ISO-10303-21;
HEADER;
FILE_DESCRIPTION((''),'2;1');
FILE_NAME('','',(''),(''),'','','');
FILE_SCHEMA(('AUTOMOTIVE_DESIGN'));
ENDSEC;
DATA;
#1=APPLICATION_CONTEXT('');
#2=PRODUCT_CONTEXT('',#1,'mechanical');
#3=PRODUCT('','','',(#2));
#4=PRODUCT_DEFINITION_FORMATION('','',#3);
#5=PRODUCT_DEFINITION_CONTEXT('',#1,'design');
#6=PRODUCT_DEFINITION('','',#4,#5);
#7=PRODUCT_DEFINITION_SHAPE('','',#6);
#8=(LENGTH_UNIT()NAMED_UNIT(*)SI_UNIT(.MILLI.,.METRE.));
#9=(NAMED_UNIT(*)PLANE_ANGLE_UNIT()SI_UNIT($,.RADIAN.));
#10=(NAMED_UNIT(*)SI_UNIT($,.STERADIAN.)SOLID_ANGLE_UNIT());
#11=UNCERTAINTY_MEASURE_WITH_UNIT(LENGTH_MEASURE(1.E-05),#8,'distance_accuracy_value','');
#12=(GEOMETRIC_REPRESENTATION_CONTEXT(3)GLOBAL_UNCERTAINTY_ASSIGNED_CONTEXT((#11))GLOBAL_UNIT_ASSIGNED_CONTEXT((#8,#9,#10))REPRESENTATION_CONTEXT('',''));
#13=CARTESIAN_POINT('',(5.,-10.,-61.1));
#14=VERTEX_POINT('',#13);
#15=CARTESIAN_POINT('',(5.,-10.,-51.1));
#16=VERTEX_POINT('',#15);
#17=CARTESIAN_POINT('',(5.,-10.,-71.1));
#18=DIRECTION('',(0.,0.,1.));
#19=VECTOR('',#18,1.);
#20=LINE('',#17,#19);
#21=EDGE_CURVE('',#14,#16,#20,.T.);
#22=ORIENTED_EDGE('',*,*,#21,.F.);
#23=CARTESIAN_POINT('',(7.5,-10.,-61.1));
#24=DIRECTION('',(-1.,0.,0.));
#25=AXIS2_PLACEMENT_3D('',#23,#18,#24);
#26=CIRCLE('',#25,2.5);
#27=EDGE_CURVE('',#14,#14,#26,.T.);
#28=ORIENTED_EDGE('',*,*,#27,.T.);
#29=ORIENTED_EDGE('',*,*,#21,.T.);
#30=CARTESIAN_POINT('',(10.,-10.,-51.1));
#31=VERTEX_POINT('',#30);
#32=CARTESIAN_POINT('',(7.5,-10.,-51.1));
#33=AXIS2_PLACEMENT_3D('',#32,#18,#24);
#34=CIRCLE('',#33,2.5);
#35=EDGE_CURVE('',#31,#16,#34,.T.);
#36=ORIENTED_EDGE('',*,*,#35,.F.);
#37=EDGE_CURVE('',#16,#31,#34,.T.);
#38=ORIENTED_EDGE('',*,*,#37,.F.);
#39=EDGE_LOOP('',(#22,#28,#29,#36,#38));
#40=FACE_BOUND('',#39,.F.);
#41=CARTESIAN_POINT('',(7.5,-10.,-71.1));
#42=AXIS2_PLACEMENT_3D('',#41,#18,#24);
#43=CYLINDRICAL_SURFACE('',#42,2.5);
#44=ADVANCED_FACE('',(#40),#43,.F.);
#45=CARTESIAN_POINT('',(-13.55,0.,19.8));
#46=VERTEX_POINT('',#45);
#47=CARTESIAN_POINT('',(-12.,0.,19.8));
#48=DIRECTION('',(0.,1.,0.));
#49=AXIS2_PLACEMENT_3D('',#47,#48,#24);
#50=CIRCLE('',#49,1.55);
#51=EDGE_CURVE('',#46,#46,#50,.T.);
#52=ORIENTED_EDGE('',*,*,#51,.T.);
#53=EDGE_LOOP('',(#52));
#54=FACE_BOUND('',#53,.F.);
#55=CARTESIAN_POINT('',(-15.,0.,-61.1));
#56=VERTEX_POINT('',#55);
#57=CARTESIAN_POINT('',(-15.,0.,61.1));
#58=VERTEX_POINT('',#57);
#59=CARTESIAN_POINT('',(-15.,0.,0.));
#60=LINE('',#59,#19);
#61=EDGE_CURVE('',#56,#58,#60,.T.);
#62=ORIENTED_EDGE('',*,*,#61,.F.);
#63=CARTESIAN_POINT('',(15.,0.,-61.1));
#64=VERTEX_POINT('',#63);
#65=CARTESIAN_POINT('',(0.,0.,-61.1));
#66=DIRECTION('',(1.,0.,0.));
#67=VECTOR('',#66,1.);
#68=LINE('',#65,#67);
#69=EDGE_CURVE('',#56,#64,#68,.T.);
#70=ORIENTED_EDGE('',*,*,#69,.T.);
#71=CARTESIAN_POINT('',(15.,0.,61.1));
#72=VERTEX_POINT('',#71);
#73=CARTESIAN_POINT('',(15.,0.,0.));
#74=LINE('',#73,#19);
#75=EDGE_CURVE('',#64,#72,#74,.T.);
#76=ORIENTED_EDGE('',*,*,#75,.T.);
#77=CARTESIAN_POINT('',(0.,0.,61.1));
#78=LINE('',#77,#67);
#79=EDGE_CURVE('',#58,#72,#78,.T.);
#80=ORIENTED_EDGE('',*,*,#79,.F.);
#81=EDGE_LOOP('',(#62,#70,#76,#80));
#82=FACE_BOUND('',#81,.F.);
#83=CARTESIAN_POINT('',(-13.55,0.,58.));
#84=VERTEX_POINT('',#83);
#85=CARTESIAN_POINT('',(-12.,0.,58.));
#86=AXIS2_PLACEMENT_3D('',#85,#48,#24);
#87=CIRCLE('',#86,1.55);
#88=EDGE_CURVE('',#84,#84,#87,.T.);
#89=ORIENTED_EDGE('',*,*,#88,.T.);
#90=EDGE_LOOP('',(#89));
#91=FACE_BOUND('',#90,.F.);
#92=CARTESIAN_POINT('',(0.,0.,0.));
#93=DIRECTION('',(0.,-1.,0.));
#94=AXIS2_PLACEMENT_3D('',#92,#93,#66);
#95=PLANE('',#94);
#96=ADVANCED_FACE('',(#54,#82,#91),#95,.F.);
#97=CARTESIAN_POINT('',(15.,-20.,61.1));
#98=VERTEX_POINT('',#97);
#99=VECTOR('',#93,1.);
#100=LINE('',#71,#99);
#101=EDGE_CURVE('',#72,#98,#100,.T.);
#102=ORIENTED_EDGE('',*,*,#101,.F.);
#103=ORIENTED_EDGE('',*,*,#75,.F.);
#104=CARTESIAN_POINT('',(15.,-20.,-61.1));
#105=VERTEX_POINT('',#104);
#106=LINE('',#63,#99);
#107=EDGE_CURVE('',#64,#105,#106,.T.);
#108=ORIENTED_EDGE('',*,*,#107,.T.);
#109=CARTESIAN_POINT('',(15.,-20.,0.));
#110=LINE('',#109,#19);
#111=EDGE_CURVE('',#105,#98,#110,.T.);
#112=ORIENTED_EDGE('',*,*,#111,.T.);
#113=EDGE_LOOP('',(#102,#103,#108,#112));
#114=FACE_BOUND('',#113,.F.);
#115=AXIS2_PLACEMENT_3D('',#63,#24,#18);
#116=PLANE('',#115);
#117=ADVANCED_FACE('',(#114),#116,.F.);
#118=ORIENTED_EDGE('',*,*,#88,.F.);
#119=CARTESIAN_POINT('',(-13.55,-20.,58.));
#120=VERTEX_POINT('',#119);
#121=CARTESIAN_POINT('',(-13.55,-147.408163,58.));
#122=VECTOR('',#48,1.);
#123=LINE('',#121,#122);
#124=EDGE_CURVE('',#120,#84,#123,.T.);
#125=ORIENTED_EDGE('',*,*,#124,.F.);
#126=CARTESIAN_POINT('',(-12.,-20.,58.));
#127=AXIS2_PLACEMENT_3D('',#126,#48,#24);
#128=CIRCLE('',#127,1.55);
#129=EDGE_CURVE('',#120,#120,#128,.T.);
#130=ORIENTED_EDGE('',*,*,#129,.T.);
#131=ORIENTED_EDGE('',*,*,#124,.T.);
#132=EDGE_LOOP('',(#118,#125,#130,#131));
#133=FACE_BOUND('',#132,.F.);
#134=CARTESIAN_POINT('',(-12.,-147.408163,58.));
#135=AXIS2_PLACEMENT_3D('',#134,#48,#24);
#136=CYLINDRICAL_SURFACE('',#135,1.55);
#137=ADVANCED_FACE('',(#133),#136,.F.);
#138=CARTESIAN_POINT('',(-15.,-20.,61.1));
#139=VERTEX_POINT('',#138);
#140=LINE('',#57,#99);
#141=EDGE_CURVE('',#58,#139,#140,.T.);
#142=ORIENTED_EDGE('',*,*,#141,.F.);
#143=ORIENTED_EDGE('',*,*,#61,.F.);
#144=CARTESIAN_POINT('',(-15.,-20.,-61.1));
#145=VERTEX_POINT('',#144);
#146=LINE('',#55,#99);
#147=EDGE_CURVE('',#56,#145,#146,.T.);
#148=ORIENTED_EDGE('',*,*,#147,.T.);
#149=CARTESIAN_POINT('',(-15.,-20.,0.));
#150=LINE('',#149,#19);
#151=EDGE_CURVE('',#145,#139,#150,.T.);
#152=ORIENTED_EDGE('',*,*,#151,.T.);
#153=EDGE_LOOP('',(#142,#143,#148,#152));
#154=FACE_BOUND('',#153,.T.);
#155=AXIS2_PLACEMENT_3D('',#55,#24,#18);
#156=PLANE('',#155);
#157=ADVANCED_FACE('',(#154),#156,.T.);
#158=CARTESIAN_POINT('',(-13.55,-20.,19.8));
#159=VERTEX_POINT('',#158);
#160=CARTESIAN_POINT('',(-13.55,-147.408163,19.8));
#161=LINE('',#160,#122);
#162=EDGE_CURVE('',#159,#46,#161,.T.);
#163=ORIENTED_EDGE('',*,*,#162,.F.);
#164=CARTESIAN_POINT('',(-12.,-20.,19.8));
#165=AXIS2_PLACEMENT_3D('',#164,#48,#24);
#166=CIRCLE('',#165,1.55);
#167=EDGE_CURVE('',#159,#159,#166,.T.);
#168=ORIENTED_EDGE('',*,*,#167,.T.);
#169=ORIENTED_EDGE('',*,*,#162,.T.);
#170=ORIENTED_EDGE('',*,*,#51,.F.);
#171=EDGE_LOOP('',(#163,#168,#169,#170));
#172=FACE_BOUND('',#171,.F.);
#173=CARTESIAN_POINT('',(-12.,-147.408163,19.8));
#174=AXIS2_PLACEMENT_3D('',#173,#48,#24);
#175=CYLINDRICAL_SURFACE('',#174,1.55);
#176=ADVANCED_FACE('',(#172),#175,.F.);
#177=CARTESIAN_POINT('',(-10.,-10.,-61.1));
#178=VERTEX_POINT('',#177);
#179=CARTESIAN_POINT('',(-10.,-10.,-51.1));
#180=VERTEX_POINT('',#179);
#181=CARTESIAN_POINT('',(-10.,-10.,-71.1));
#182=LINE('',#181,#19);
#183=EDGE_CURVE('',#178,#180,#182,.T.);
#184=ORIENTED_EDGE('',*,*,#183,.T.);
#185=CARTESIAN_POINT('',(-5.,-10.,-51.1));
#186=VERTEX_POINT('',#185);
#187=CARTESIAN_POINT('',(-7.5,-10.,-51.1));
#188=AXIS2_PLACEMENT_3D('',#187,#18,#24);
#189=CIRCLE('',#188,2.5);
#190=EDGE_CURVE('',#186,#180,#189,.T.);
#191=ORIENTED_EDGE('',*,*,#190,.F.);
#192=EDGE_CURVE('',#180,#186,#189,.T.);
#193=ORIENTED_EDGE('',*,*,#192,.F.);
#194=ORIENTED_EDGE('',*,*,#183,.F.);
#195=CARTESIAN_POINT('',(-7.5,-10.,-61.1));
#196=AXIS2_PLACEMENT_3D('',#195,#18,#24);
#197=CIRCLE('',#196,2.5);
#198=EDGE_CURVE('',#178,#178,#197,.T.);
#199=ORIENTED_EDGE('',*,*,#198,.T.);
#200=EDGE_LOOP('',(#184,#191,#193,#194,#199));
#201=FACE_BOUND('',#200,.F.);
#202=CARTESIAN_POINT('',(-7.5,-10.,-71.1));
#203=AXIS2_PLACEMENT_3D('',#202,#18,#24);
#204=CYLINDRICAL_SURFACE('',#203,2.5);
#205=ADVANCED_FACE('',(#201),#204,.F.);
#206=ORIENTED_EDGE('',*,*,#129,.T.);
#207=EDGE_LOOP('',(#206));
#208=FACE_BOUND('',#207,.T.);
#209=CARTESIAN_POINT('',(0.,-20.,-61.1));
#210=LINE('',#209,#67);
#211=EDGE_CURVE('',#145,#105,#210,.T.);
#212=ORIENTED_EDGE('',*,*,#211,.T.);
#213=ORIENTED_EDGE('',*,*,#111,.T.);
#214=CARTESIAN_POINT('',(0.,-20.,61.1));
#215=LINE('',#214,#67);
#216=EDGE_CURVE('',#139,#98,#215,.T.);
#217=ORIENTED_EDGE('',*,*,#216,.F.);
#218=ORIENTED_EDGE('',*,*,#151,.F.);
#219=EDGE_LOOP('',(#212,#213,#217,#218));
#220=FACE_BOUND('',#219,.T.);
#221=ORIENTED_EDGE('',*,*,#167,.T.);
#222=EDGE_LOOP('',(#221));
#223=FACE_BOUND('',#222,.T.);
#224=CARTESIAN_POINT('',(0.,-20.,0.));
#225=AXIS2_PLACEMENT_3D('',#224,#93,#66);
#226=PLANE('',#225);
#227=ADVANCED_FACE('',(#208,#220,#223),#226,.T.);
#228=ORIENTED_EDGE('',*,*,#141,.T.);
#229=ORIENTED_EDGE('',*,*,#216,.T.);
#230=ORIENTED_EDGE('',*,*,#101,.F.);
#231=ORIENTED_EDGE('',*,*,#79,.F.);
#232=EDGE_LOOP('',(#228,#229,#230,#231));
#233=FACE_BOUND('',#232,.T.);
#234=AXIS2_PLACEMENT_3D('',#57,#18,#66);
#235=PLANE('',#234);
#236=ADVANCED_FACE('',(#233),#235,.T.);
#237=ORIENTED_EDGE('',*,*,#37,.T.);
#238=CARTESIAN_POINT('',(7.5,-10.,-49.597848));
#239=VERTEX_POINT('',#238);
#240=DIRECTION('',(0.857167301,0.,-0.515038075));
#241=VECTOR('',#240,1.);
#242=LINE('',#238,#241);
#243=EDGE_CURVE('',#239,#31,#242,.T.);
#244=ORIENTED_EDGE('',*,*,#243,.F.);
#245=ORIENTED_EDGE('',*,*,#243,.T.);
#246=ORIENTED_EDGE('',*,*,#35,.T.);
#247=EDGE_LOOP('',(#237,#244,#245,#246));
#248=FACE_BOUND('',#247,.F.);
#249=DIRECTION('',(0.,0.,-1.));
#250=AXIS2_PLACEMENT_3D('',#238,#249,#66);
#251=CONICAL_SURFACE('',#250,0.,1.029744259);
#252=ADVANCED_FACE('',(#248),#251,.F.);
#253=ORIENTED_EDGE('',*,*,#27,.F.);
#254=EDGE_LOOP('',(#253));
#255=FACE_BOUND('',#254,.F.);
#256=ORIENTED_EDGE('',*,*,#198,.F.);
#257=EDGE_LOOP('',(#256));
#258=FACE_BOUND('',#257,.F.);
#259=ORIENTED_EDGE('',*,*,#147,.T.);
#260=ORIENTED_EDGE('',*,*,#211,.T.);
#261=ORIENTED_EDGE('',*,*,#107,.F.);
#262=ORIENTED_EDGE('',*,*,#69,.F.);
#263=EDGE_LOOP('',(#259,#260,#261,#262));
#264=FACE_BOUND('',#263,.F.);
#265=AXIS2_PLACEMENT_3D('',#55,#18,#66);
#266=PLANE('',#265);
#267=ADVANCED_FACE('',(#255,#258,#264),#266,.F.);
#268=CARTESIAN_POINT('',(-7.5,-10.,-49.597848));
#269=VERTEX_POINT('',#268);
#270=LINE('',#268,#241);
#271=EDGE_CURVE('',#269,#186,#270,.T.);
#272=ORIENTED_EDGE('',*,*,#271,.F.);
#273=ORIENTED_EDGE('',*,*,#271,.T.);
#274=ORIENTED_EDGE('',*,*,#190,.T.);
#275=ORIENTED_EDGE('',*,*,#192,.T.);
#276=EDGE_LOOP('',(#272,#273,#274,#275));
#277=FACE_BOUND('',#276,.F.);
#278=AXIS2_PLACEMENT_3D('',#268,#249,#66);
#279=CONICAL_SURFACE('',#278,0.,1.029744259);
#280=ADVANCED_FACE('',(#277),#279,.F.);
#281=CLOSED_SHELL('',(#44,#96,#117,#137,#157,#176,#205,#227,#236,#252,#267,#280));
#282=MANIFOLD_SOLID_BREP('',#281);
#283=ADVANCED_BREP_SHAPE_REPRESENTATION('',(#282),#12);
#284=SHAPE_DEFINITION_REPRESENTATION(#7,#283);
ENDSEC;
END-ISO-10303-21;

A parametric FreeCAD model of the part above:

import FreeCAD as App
import Part
import Sketcher

V = App.Vector

doc = App.newDocument("Part")
body = doc.addObject("PartDesign::Body", "Body")

# Sketch on XZ plane
sketch1 = body.newObject("Sketcher::SketchObject", "Sketch")
sketch1.AttachmentSupport = (doc.getObject("XZ_Plane"), [""])
sketch1.MapMode = "FlatFace"
sketch1.addGeometry([
    Part.LineSegment(V(-15, 61, 0), V(-15, -61, 0)),
    Part.LineSegment(V(-15, -61, 0), V(15, -61, 0)),
    Part.LineSegment(V(15, -61, 0), V(15, 61, 0)),
    Part.LineSegment(V(15, 61, 0), V(-15, 61, 0)),
], False)
sketch1.addConstraint([
    Sketcher.Constraint("Coincident", 0, 2, 1, 1),
    Sketcher.Constraint("Coincident", 1, 2, 2, 1),
    Sketcher.Constraint("Coincident", 2, 2, 3, 1),
    Sketcher.Constraint("Coincident", 3, 2, 0, 1),
    Sketcher.Constraint("Vertical", 0),
    Sketcher.Constraint("Horizontal", 1),
    Sketcher.Constraint("Vertical", 2),
    Sketcher.Constraint("Horizontal", 3),
    Sketcher.Constraint("Symmetric", 0, 2, 2, 2, -1, 1),
    Sketcher.Constraint("DistanceX", 1, 1, 1, 2, 30.0),
    Sketcher.Constraint("DistanceY", 0, 2, 0, 1, 122.2),
])
pad1 = body.newObject("PartDesign::Pad", "Pad")
pad1.Profile = sketch1
pad1.Length = 20

# Sketch on XZ plane
sketch2 = body.newObject("Sketcher::SketchObject", "Sketch001")
sketch2.AttachmentSupport = (doc.getObject("XZ_Plane"), [""])
sketch2.MapMode = "FlatFace"
sketch2.AttachmentOffset = App.Placement(V(0, 0, 20), App.Rotation())
sketch2.addGeometry([
    Part.Circle(V(-12, 58, 0), V(0, 0, 1), 1.6),
    Part.Circle(V(-12, 19.8, 0), V(0, 0, 1), 1.6),
], False)
sketch2.addConstraint([
    Sketcher.Constraint("Equal", 0, 1),
    Sketcher.Constraint("Vertical", 0, 3, 1, 3),
    Sketcher.Constraint("Diameter", 0, 3.1),
    Sketcher.Constraint("DistanceX", 0, 3, -1, 1, 12.0),
    Sketcher.Constraint("DistanceY", -1, 1, 0, 3, 58.0),
    Sketcher.Constraint("DistanceY", -1, 1, 1, 3, 19.8),
])
doc.recompute()
hole = body.newObject("PartDesign::Hole", "Hole")
hole.Profile = sketch2
hole.ThreadType = "None"
hole.Diameter = 3.1
hole.DepthType = "ThroughAll"

# Sketch on XY plane
sketch3 = body.newObject("Sketcher::SketchObject", "Sketch002")
sketch3.AttachmentSupport = (doc.getObject("XY_Plane"), [""])
sketch3.MapMode = "FlatFace"
sketch3.AttachmentOffset = App.Placement(V(0, 0, -61.1), App.Rotation())
sketch3.addGeometry([
    Part.Circle(V(-7.5, -10, 0), V(0, 0, 1), 2.5),
    Part.Circle(V(7.5, -10, 0), V(0, 0, 1), 2.5),
], False)
sketch3.addConstraint([
    Sketcher.Constraint("Equal", 0, 1),
    Sketcher.Constraint("Symmetric", 0, 3, 1, 3, -2),
    Sketcher.Constraint("Diameter", 0, 5.0),
    Sketcher.Constraint("DistanceY", 0, 3, -1, 1, 10.0),
    Sketcher.Constraint("DistanceX", 0, 3, 1, 3, 15.0),
])
doc.recompute()
hole2 = body.newObject("PartDesign::Hole", "Hole001")
hole2.Profile = sketch3
hole2.ThreadType = "None"
hole2.Diameter = 5
hole2.DepthType = "Dimension"
hole2.Depth = 10
hole2.DrillPoint = "Angled"
hole2.DrillPointAngle = 118
hole2.Reversed = True

doc.recompute()
